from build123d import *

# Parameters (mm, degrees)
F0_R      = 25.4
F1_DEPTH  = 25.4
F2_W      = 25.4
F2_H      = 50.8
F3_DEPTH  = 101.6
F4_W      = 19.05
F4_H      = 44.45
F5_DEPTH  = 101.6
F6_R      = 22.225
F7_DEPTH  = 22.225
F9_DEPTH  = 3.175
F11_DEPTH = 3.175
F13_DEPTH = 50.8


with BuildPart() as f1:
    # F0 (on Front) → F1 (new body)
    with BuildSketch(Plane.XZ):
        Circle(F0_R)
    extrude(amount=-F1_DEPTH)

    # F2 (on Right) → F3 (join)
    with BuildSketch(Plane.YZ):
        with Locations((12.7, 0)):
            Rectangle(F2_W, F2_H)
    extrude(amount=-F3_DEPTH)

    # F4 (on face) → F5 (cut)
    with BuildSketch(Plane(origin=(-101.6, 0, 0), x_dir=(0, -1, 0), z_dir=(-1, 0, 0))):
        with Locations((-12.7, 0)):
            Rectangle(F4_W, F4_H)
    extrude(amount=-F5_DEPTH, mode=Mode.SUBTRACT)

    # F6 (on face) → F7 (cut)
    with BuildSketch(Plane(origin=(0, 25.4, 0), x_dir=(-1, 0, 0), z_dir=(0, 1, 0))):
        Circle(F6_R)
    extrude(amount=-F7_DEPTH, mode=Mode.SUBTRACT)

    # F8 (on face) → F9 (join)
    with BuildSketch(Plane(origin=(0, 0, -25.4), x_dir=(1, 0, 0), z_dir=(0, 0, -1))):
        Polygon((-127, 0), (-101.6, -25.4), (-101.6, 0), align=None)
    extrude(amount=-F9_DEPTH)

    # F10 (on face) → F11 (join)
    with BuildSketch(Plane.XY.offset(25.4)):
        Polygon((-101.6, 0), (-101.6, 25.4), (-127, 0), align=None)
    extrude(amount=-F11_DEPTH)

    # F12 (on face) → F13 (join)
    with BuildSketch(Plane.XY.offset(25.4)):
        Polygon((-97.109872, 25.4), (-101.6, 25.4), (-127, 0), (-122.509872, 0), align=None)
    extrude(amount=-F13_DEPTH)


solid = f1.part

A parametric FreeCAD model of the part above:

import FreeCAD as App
import Part
import Sketcher
Q = App.Units.Quantity


def add_polygon(sketch, points):
    """Adds a closed chain of lines whose ends are joined by coincident constraints."""
    first, n = sketch.GeometryCount, len(points)
    for a, b in zip(points, points[1:] + points[:1]):
        sketch.addGeometry(Part.LineSegment(App.Vector(*a, 0), App.Vector(*b, 0)), False)
    for i in range(n):
        sketch.addConstraint(Sketcher.Constraint("Coincident", first + i, 2, first + (i + 1) % n, 1))

doc = App.newDocument("Part")
params = doc.addObject("Spreadsheet::Sheet", "Params")
for row, (alias, value) in enumerate([
    ("sketch1_diameter", "2 in"),
    ("pad1_length", "1 in"),
    ("sketch2_width", "1 in"),
    ("sketch2_height", "2 in"),
    ("pad2_length", "4 in"),
    ("sketch3_width", "0.75 in"),
    ("sketch3_height", "1.75 in"),
    ("pocket1_length", "4 in"),
    ("sketch4_diameter", "1.75 in"),
    ("pocket2_length", "0.875 in"),
    ("sketch5_width", "1 in"),
    ("pad3_length", "0.125 in"),
    ("sketch6_width", "1 in"),
    ("pad4_length", "0.125 in"),
    ("pad5_length", "2 in"),
], start=1):
    params.set(f"A{row}", alias)
    params.set(f"B{row}", "=" + value)
    params.setAlias(f"B{row}", alias)

body = doc.addObject("PartDesign::Body", "Body")

sketch1 = body.newObject("Sketcher::SketchObject", "Sketch")
sketch1.AttachmentSupport = (doc.getObject("XZ_Plane"), [""])
sketch1.MapMode = "FlatFace"
sketch1.addGeometry(Part.Circle(App.Vector(0, 0, 0), App.Vector(0, 0, 1), 25), False)
sketch1.addConstraint([
    Sketcher.Constraint("Coincident", 0, 3, -1, 1),
    Sketcher.Constraint("Diameter", 0, Q("2 in")),
])
sketch1.setExpression("Constraints[1]", "Params.sketch1_diameter")
pad1 = body.newObject("PartDesign::Pad", "Pad")
pad1.Profile = sketch1
pad1.setExpression("Length", "Params.pad1_length")
pad1.Reversed = True

sketch2 = body.newObject("Sketcher::SketchObject", "Sketch001")
sketch2.AttachmentSupport = (doc.getObject("YZ_Plane"), [""])
sketch2.MapMode = "FlatFace"
add_polygon(sketch2, [(0, 25), (0, -25), (25, -25), (25, 25)])
sketch2.addConstraint([
    Sketcher.Constraint("Vertical", 0),
    Sketcher.Constraint("Horizontal", 1),
    Sketcher.Constraint("Vertical", 2),
    Sketcher.Constraint("Horizontal", 3),
    Sketcher.Constraint("Symmetric", 0, 2, 3, 2, -1, 1),
    Sketcher.Constraint("DistanceX", 1, 1, 1, 2, Q("1 in")),
    Sketcher.Constraint("DistanceY", 0, 2, 0, 1, Q("2 in")),
])
sketch2.setExpression("Constraints[9]", "Params.sketch2_width")
sketch2.setExpression("Constraints[10]", "Params.sketch2_height")
pad2 = body.newObject("PartDesign::Pad", "Pad001")
pad2.Profile = sketch2
pad2.setExpression("Length", "Params.pad2_length")
pad2.Reversed = True

sketch3 = body.newObject("Sketcher::SketchObject", "Sketch002")
sketch3.AttachmentSupport = (doc.getObject("YZ_Plane"), [""])
sketch3.MapMode = "FlatFace"
sketch3.AttachmentOffset = App.Placement(App.Vector(0, 0, -4 * 25.4), App.Rotation())
add_polygon(sketch3, [(22, 22), (22, -22), (3, -22), (3, 22)])
sketch3.addConstraint([
    Sketcher.Constraint("Vertical", 0),
    Sketcher.Constraint("Horizontal", 1),
    Sketcher.Constraint("Vertical", 2),
    Sketcher.Constraint("Horizontal", 3),
    Sketcher.Constraint("DistanceX", 1, 2, 1, 1, Q("0.75 in")),
    Sketcher.Constraint("DistanceY", 0, 2, 0, 1, Q("1.75 in")),
    Sketcher.Constraint("DistanceX", -1, 1, 0, 2, Q("0.875 in")),
    Sketcher.Constraint("DistanceY", 0, 2, -1, 1, Q("0.875 in")),
])
sketch3.setExpression("Constraints[8]", "Params.sketch3_width")
sketch3.setExpression("Constraints[9]", "Params.sketch3_height")
pocket1 = body.newObject("PartDesign::Pocket", "Pocket")
pocket1.Profile = sketch3
pocket1.setExpression("Length", "Params.pocket1_length")
pocket1.Reversed = True

sketch4 = body.newObject("Sketcher::SketchObject", "Sketch003")
sketch4.AttachmentSupport = (doc.getObject("XZ_Plane"), [""])
sketch4.MapMode = "FlatFace"
sketch4.AttachmentOffset = App.Placement(App.Vector(0, 0, -1 * 25.4), App.Rotation())
sketch4.addGeometry(Part.Circle(App.Vector(0, 0, 0), App.Vector(0, 0, 1), 22), False)
sketch4.addConstraint([
    Sketcher.Constraint("Coincident", 0, 3, -1, 1),
    Sketcher.Constraint("Diameter", 0, Q("1.75 in")),
])
sketch4.setExpression("Constraints[1]", "Params.sketch4_diameter")
pocket2 = body.newObject("PartDesign::Pocket", "Pocket001")
pocket2.Profile = sketch4
pocket2.setExpression("Length", "Params.pocket2_length")
pocket2.Reversed = True

sketch5 = body.newObject("Sketcher::SketchObject", "Sketch004")
sketch5.AttachmentSupport = (doc.getObject("XY_Plane"), [""])
sketch5.MapMode = "FlatFace"
sketch5.AttachmentOffset = App.Placement(App.Vector(0, 0, -1 * 25.4), App.Rotation())
add_polygon(sketch5, [(-127, 0), (-102, 25), (-102, 0)])
sketch5.addConstraint([
    Sketcher.Constraint("Vertical", 1),
    Sketcher.Constraint("Horizontal", 2),
    Sketcher.Constraint("PointOnObject", 1, 2, -1),
    Sketcher.Constraint("Equal", 2, 1),
    Sketcher.Constraint("DistanceX", 2, 2, 2, 1, Q("1 in")),
    Sketcher.Constraint("DistanceX", 0, 2, -1, 1, Q("4 in")),
])
sketch5.setExpression("Constraints[7]", "Params.sketch5_width")
pad3 = body.newObject("PartDesign::Pad", "Pad002")
pad3.Profile = sketch5
pad3.setExpression("Length", "Params.pad3_length")

sketch6 = body.newObject("Sketcher::SketchObject", "Sketch005")
sketch6.AttachmentSupport = (doc.getObject("XY_Plane"), [""])
sketch6.MapMode = "FlatFace"
sketch6.AttachmentOffset = App.Placement(App.Vector(0, 0, 1 * 25.4), App.Rotation())
add_polygon(sketch6, [(-102, 0), (-102, 25), (-127, 0)])
sketch6.addConstraint([
    Sketcher.Constraint("Vertical", 0),
    Sketcher.Constraint("Horizontal", 2),
    Sketcher.Constraint("PointOnObject", 1, 2, -1),
    Sketcher.Constraint("Equal", 2, 0),
    Sketcher.Constraint("DistanceX", 2, 1, 2, 2, Q("1 in")),
    Sketcher.Constraint("DistanceX", 0, 2, -1, 1, Q("4 in")),
])
sketch6.setExpression("Constraints[7]", "Params.sketch6_width")
pad4 = body.newObject("PartDesign::Pad", "Pad003")
pad4.Profile = sketch6
pad4.setExpression("Length", "Params.pad4_length")
pad4.Reversed = True

sketch7 = body.newObject("Sketcher::SketchObject", "Sketch006")
sketch7.AttachmentSupport = (doc.getObject("XY_Plane"), [""])
sketch7.MapMode = "FlatFace"
sketch7.AttachmentOffset = App.Placement(App.Vector(0, 0, 1 * 25.4), App.Rotation())
add_polygon(sketch7, [(-97.1, 25.4), (-101.6, 25.4), (-127, 0), (-122.5, 0)])
sketch7.addConstraint([
    Sketcher.Constraint("Horizontal", 0),
    Sketcher.Constraint("Horizontal", 2),
    Sketcher.Constraint("PointOnObject", 1, 2, -1),
    Sketcher.Constraint("Parallel", 1, 3),
    Sketcher.Constraint("DistanceX", 0, 2, -1, 1, Q("4 in")),
    Sketcher.Constraint("DistanceY", -1, 1, 0, 2, Q("1 in")),
    Sketcher.Constraint("DistanceX", 1, 2, -1, 1, Q("5 in")),
    Sketcher.Constraint("DistanceX", 0, 2, 0, 1, 4.490128),
])
pad5 = body.newObject("PartDesign::Pad", "Pad004")
pad5.Profile = sketch7
pad5.setExpression("Length", "Params.pad5_length")
pad5.Reversed = True

doc.recompute()
